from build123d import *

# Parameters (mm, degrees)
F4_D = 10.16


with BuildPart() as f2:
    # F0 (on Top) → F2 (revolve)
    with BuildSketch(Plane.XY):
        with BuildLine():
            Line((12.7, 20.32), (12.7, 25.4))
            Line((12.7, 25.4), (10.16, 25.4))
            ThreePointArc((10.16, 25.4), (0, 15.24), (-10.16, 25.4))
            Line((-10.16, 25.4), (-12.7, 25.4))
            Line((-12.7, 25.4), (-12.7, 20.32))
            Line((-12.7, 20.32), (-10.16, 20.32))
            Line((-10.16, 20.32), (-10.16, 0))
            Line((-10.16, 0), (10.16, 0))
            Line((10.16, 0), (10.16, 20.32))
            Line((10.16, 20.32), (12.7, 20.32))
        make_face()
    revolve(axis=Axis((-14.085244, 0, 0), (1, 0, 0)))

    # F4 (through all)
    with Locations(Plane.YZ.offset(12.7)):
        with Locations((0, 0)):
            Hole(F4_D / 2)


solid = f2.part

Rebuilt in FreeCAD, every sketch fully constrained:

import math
import FreeCAD as App
import Part
import Sketcher

V = App.Vector
Q = App.Units.Quantity

doc = App.newDocument("Part")
body = doc.addObject("PartDesign::Body", "Body")

# Sketch on XY plane
sketch1 = body.newObject("Sketcher::SketchObject", "Sketch")
sketch1.AttachmentSupport = (doc.getObject("XY_Plane"), [""])
sketch1.MapMode = "FlatFace"
sketch1.addGeometry(Part.LineSegment(V(12.7, 20.32, 0), V(12.7, 25.4, 0)), False)
sketch1.addGeometry(Part.LineSegment(V(12.7, 25.4, 0), V(10.16, 25.4, 0)), False)
sketch1.addGeometry(Part.ArcOfCircle(Part.Circle(V(0, 25.4, 0), V(0, 0, 1), 10.16), math.radians(180), math.radians(360)), False)
sketch1.addGeometry(Part.LineSegment(V(-10.16, 25.4, 0), V(-12.7, 25.4, 0)), False)
sketch1.addGeometry(Part.LineSegment(V(-12.7, 25.4, 0), V(-12.7, 20.32, 0)), False)
sketch1.addGeometry(Part.LineSegment(V(-12.7, 20.32, 0), V(-10.16, 20.32, 0)), False)
sketch1.addGeometry(Part.LineSegment(V(-10.16, 20.32, 0), V(-10.16, 0, 0)), False)
sketch1.addGeometry(Part.LineSegment(V(-10.16, 0, 0), V(10.16, 0, 0)), False)
sketch1.addGeometry(Part.LineSegment(V(10.16, 0, 0), V(10.16, 20.32, 0)), False)
sketch1.addGeometry(Part.LineSegment(V(10.16, 20.32, 0), V(12.7, 20.32, 0)), False)
sketch1.addConstraint(Sketcher.Constraint("Coincident", 0, 2, 1, 1))
sketch1.addConstraint(Sketcher.Constraint("Coincident", 1, 2, 2, 2))
sketch1.addConstraint(Sketcher.Constraint("Coincident", 2, 1, 3, 1))
sketch1.addConstraint(Sketcher.Constraint("Coincident", 3, 2, 4, 1))
sketch1.addConstraint(Sketcher.Constraint("Coincident", 4, 2, 5, 1))
sketch1.addConstraint(Sketcher.Constraint("Coincident", 5, 2, 6, 1))
sketch1.addConstraint(Sketcher.Constraint("Coincident", 6, 2, 7, 1))
sketch1.addConstraint(Sketcher.Constraint("Coincident", 7, 2, 8, 1))
sketch1.addConstraint(Sketcher.Constraint("Coincident", 8, 2, 9, 1))
sketch1.addConstraint(Sketcher.Constraint("Coincident", 9, 2, 0, 1))
sketch1.addConstraint(Sketcher.Constraint("Vertical", 0))
sketch1.addConstraint(Sketcher.Constraint("Horizontal", 1))
sketch1.addConstraint(Sketcher.Constraint("Horizontal", 3))
sketch1.addConstraint(Sketcher.Constraint("Vertical", 4))
sketch1.addConstraint(Sketcher.Constraint("Horizontal", 5))
sketch1.addConstraint(Sketcher.Constraint("Vertical", 6))
sketch1.addConstraint(Sketcher.Constraint("Horizontal", 7))
sketch1.addConstraint(Sketcher.Constraint("Vertical", 8))
sketch1.addConstraint(Sketcher.Constraint("Horizontal", 9))
sketch1.addConstraint(Sketcher.Constraint("Symmetric", 6, 2, 7, 2, -1, 1))
sketch1.addConstraint(Sketcher.Constraint("Symmetric", 1, 2, 2, 1, -2))
sketch1.addConstraint(Sketcher.Constraint("Symmetric", 4, 2, 9, 2, -2))
sketch1.addConstraint(Sketcher.Constraint("Horizontal", 2, 3, 0, 2))
sketch1.addConstraint(Sketcher.Constraint("Vertical", 2, 1, 5, 2))
sketch1.addConstraint(Sketcher.Constraint("Equal", 7, 6))
sketch1.addConstraint(Sketcher.Constraint("Radius", 2, Q("0.4 in")))
sketch1.addConstraint(Sketcher.Constraint("DistanceX", 1, 2, 1, 1, Q("0.1 in")))
sketch1.addConstraint(Sketcher.Constraint("DistanceY", 0, 1, 0, 2, Q("0.2 in")))
revolution = body.newObject("PartDesign::Revolution", "Revolution")
revolution.Profile = sketch1
revolution.ReferenceAxis = (sketch1, ["H_Axis"])
revolution.Angle = 360

# Sketch on YZ plane
sketch2 = body.newObject("Sketcher::SketchObject", "Sketch001")
sketch2.AttachmentSupport = (doc.getObject("YZ_Plane"), [""])
sketch2.MapMode = "FlatFace"
sketch2.AttachmentOffset = App.Placement(V(0, 0, 0.5 * 25.4), App.Rotation())
sketch2.addGeometry(Part.Circle(V(0, 0, 0), V(0, 0, 1), 5.08), False)
sketch2.addConstraint(Sketcher.Constraint("Coincident", 0, 3, -1, 1))
sketch2.addConstraint(Sketcher.Constraint("Diameter", 0, Q("0.4 in")))
doc.recompute()
hole = body.newObject("PartDesign::Hole", "Hole")
hole.Profile = sketch2
hole.ThreadType = "None"
hole.Diameter = Q("0.4 in")
hole.DepthType = "ThroughAll"

doc.recompute()
